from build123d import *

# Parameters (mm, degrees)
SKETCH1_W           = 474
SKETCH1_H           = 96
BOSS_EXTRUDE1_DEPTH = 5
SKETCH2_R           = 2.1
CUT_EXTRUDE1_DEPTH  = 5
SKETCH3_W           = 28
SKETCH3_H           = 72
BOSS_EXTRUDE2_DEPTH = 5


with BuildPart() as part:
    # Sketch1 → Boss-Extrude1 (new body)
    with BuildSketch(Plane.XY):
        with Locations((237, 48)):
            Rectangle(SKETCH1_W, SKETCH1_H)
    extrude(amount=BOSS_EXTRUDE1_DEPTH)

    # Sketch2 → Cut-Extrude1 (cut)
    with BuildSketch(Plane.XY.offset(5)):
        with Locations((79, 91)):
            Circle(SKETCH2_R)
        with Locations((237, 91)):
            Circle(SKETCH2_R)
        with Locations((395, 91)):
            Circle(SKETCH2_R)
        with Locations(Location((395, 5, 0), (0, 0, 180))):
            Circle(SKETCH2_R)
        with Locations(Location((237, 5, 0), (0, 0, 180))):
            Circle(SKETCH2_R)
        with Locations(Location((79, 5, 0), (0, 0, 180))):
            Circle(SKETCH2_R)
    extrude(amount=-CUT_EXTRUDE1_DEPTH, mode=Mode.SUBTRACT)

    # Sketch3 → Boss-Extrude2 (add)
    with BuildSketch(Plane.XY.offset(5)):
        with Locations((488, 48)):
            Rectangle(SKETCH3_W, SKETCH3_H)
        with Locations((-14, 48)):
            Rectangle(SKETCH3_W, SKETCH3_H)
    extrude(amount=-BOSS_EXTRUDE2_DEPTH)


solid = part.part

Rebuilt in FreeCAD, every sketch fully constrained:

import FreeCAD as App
import Part
import Sketcher
from FreeCAD import Vector
Q = App.Units.Quantity

doc = App.newDocument("Part")
body = doc.addObject("PartDesign::Body", "Body")

# Sketch on XY plane
sketch1 = body.newObject("Sketcher::SketchObject", "Sketch")
sketch1.AttachmentSupport = (doc.getObject("XY_Plane"), [""])
sketch1.MapMode = "FlatFace"
sketch1.addGeometry(Part.LineSegment(Vector(0, 96, 0), Vector(0, 0, 0)), False)
sketch1.addGeometry(Part.LineSegment(Vector(0, 0, 0), Vector(474, 0, 0)), False)
sketch1.addGeometry(Part.LineSegment(Vector(474, 0, 0), Vector(474, 96, 0)), False)
sketch1.addGeometry(Part.LineSegment(Vector(474, 96, 0), Vector(0, 96, 0)), False)
sketch1.addConstraint(Sketcher.Constraint("Coincident", 0, 2, 1, 1))
sketch1.addConstraint(Sketcher.Constraint("Coincident", 1, 2, 2, 1))
sketch1.addConstraint(Sketcher.Constraint("Coincident", 2, 2, 3, 1))
sketch1.addConstraint(Sketcher.Constraint("Coincident", 3, 2, 0, 1))
sketch1.addConstraint(Sketcher.Constraint("Vertical", 0))
sketch1.addConstraint(Sketcher.Constraint("Horizontal", 1))
sketch1.addConstraint(Sketcher.Constraint("Vertical", 2))
sketch1.addConstraint(Sketcher.Constraint("Horizontal", 3))
sketch1.addConstraint(Sketcher.Constraint("Coincident", 0, 2, -1, 1))
sketch1.addConstraint(Sketcher.Constraint("DistanceX", 1, 1, 1, 2, Q("474 mm")))
sketch1.addConstraint(Sketcher.Constraint("DistanceY", 0, 2, 0, 1, Q("96 mm")))
pad1 = body.newObject("PartDesign::Pad", "Pad")
pad1.Profile = sketch1
pad1.Length = 5

# Sketch on XY plane
sketch2 = body.newObject("Sketcher::SketchObject", "Sketch001")
sketch2.AttachmentSupport = (doc.getObject("XY_Plane"), [""])
sketch2.MapMode = "FlatFace"
sketch2.AttachmentOffset = App.Placement(Vector(0, 0, 5), App.Rotation())
sketch2.addGeometry(Part.Circle(Vector(79, 91, 0), Vector(0, 0, 1), 2.1), False)
sketch2.addGeometry(Part.Circle(Vector(237, 91, 0), Vector(0, 0, 1), 2.1), False)
sketch2.addGeometry(Part.Circle(Vector(395, 91, 0), Vector(0, 0, 1), 2.1), False)
sketch2.addGeometry(Part.Circle(Vector(395, 5, 0), Vector(0, 0, 1), 2.1), False)
sketch2.addGeometry(Part.Circle(Vector(237, 5, 0), Vector(0, 0, 1), 2.1), False)
sketch2.addGeometry(Part.Circle(Vector(79, 5, 0), Vector(0, 0, 1), 2.1), False)
sketch2.addConstraint(Sketcher.Constraint("Equal", 0, 1))
sketch2.addConstraint(Sketcher.Constraint("Equal", 1, 2))
sketch2.addConstraint(Sketcher.Constraint("Equal", 2, 3))
sketch2.addConstraint(Sketcher.Constraint("Equal", 3, 4))
sketch2.addConstraint(Sketcher.Constraint("Equal", 4, 5))
sketch2.addConstraint(Sketcher.Constraint("Horizontal", 0, 3, 1, 3))
sketch2.addConstraint(Sketcher.Constraint("Horizontal", 1, 3, 2, 3))
sketch2.addConstraint(Sketcher.Constraint("Horizontal", 3, 3, 4, 3))
sketch2.addConstraint(Sketcher.Constraint("Horizontal", 4, 3, 5, 3))
sketch2.addConstraint(Sketcher.Constraint("Vertical", 2, 3, 3, 3))
sketch2.addConstraint(Sketcher.Constraint("Vertical", 1, 3, 4, 3))
sketch2.addConstraint(Sketcher.Constraint("Vertical", 0, 3, 5, 3))
sketch2.addConstraint(Sketcher.Constraint("Diameter", 0, Q("4.2 mm")))
sketch2.addConstraint(Sketcher.Constraint("DistanceX", -1, 1, 0, 3, Q("79 mm")))
sketch2.addConstraint(Sketcher.Constraint("DistanceY", -1, 1, 0, 3, Q("91 mm")))
sketch2.addConstraint(Sketcher.Constraint("DistanceX", -1, 1, 1, 3, Q("237 mm")))
sketch2.addConstraint(Sketcher.Constraint("DistanceX", -1, 1, 2, 3, Q("395 mm")))
sketch2.addConstraint(Sketcher.Constraint("DistanceY", -1, 1, 3, 3, Q("5 mm")))
pocket1 = body.newObject("PartDesign::Pocket", "Pocket")
pocket1.Profile = sketch2
pocket1.Length = 5

# Sketch on XY plane
sketch3 = body.newObject("Sketcher::SketchObject", "Sketch002")
sketch3.AttachmentSupport = (doc.getObject("XY_Plane"), [""])
sketch3.MapMode = "FlatFace"
sketch3.AttachmentOffset = App.Placement(Vector(0, 0, 5), App.Rotation())
sketch3.addGeometry(Part.LineSegment(Vector(474, 84, 0), Vector(474, 12, 0)), False)
sketch3.addGeometry(Part.LineSegment(Vector(474, 12, 0), Vector(502, 12, 0)), False)
sketch3.addGeometry(Part.LineSegment(Vector(502, 12, 0), Vector(502, 84, 0)), False)
sketch3.addGeometry(Part.LineSegment(Vector(502, 84, 0), Vector(474, 84, 0)), False)
sketch3.addGeometry(Part.LineSegment(Vector(-28, 84, 0), Vector(-28, 12, 0)), False)
sketch3.addGeometry(Part.LineSegment(Vector(-28, 12, 0), Vector(0, 12, 0)), False)
sketch3.addGeometry(Part.LineSegment(Vector(0, 12, 0), Vector(0, 84, 0)), False)
sketch3.addGeometry(Part.LineSegment(Vector(0, 84, 0), Vector(-28, 84, 0)), False)
sketch3.addConstraint(Sketcher.Constraint("Coincident", 0, 2, 1, 1))
sketch3.addConstraint(Sketcher.Constraint("Coincident", 1, 2, 2, 1))
sketch3.addConstraint(Sketcher.Constraint("Coincident", 2, 2, 3, 1))
sketch3.addConstraint(Sketcher.Constraint("Coincident", 3, 2, 0, 1))
sketch3.addConstraint(Sketcher.Constraint("Coincident", 4, 2, 5, 1))
sketch3.addConstraint(Sketcher.Constraint("Coincident", 5, 2, 6, 1))
sketch3.addConstraint(Sketcher.Constraint("Coincident", 6, 2, 7, 1))
sketch3.addConstraint(Sketcher.Constraint("Coincident", 7, 2, 4, 1))
sketch3.addConstraint(Sketcher.Constraint("Vertical", 0))
sketch3.addConstraint(Sketcher.Constraint("Horizontal", 1))
sketch3.addConstraint(Sketcher.Constraint("Vertical", 2))
sketch3.addConstraint(Sketcher.Constraint("Horizontal", 3))
sketch3.addConstraint(Sketcher.Constraint("Vertical", 4))
sketch3.addConstraint(Sketcher.Constraint("Horizontal", 5))
sketch3.addConstraint(Sketcher.Constraint("Vertical", 6))
sketch3.addConstraint(Sketcher.Constraint("Horizontal", 7))
sketch3.addConstraint(Sketcher.Constraint("PointOnObject", 5, 2, -2))
sketch3.addConstraint(Sketcher.Constraint("Horizontal", 1, 2, 4, 2))
sketch3.addConstraint(Sketcher.Constraint("Horizontal", 3, 2, 6, 2))
sketch3.addConstraint(Sketcher.Constraint("Equal", 3, 5))
sketch3.addConstraint(Sketcher.Constraint("DistanceX", 1, 1, 1, 2, Q("28 mm")))
sketch3.addConstraint(Sketcher.Constraint("DistanceY", 0, 2, 0, 1, Q("72 mm")))
sketch3.addConstraint(Sketcher.Constraint("DistanceX", -1, 1, 0, 2, Q("474 mm")))
sketch3.addConstraint(Sketcher.Constraint("DistanceY", -1, 1, 0, 2, Q("12 mm")))
pad2 = body.newObject("PartDesign::Pad", "Pad001")
pad2.Profile = sketch3
pad2.Length = 5
pad2.Reversed = True

doc.recompute()
